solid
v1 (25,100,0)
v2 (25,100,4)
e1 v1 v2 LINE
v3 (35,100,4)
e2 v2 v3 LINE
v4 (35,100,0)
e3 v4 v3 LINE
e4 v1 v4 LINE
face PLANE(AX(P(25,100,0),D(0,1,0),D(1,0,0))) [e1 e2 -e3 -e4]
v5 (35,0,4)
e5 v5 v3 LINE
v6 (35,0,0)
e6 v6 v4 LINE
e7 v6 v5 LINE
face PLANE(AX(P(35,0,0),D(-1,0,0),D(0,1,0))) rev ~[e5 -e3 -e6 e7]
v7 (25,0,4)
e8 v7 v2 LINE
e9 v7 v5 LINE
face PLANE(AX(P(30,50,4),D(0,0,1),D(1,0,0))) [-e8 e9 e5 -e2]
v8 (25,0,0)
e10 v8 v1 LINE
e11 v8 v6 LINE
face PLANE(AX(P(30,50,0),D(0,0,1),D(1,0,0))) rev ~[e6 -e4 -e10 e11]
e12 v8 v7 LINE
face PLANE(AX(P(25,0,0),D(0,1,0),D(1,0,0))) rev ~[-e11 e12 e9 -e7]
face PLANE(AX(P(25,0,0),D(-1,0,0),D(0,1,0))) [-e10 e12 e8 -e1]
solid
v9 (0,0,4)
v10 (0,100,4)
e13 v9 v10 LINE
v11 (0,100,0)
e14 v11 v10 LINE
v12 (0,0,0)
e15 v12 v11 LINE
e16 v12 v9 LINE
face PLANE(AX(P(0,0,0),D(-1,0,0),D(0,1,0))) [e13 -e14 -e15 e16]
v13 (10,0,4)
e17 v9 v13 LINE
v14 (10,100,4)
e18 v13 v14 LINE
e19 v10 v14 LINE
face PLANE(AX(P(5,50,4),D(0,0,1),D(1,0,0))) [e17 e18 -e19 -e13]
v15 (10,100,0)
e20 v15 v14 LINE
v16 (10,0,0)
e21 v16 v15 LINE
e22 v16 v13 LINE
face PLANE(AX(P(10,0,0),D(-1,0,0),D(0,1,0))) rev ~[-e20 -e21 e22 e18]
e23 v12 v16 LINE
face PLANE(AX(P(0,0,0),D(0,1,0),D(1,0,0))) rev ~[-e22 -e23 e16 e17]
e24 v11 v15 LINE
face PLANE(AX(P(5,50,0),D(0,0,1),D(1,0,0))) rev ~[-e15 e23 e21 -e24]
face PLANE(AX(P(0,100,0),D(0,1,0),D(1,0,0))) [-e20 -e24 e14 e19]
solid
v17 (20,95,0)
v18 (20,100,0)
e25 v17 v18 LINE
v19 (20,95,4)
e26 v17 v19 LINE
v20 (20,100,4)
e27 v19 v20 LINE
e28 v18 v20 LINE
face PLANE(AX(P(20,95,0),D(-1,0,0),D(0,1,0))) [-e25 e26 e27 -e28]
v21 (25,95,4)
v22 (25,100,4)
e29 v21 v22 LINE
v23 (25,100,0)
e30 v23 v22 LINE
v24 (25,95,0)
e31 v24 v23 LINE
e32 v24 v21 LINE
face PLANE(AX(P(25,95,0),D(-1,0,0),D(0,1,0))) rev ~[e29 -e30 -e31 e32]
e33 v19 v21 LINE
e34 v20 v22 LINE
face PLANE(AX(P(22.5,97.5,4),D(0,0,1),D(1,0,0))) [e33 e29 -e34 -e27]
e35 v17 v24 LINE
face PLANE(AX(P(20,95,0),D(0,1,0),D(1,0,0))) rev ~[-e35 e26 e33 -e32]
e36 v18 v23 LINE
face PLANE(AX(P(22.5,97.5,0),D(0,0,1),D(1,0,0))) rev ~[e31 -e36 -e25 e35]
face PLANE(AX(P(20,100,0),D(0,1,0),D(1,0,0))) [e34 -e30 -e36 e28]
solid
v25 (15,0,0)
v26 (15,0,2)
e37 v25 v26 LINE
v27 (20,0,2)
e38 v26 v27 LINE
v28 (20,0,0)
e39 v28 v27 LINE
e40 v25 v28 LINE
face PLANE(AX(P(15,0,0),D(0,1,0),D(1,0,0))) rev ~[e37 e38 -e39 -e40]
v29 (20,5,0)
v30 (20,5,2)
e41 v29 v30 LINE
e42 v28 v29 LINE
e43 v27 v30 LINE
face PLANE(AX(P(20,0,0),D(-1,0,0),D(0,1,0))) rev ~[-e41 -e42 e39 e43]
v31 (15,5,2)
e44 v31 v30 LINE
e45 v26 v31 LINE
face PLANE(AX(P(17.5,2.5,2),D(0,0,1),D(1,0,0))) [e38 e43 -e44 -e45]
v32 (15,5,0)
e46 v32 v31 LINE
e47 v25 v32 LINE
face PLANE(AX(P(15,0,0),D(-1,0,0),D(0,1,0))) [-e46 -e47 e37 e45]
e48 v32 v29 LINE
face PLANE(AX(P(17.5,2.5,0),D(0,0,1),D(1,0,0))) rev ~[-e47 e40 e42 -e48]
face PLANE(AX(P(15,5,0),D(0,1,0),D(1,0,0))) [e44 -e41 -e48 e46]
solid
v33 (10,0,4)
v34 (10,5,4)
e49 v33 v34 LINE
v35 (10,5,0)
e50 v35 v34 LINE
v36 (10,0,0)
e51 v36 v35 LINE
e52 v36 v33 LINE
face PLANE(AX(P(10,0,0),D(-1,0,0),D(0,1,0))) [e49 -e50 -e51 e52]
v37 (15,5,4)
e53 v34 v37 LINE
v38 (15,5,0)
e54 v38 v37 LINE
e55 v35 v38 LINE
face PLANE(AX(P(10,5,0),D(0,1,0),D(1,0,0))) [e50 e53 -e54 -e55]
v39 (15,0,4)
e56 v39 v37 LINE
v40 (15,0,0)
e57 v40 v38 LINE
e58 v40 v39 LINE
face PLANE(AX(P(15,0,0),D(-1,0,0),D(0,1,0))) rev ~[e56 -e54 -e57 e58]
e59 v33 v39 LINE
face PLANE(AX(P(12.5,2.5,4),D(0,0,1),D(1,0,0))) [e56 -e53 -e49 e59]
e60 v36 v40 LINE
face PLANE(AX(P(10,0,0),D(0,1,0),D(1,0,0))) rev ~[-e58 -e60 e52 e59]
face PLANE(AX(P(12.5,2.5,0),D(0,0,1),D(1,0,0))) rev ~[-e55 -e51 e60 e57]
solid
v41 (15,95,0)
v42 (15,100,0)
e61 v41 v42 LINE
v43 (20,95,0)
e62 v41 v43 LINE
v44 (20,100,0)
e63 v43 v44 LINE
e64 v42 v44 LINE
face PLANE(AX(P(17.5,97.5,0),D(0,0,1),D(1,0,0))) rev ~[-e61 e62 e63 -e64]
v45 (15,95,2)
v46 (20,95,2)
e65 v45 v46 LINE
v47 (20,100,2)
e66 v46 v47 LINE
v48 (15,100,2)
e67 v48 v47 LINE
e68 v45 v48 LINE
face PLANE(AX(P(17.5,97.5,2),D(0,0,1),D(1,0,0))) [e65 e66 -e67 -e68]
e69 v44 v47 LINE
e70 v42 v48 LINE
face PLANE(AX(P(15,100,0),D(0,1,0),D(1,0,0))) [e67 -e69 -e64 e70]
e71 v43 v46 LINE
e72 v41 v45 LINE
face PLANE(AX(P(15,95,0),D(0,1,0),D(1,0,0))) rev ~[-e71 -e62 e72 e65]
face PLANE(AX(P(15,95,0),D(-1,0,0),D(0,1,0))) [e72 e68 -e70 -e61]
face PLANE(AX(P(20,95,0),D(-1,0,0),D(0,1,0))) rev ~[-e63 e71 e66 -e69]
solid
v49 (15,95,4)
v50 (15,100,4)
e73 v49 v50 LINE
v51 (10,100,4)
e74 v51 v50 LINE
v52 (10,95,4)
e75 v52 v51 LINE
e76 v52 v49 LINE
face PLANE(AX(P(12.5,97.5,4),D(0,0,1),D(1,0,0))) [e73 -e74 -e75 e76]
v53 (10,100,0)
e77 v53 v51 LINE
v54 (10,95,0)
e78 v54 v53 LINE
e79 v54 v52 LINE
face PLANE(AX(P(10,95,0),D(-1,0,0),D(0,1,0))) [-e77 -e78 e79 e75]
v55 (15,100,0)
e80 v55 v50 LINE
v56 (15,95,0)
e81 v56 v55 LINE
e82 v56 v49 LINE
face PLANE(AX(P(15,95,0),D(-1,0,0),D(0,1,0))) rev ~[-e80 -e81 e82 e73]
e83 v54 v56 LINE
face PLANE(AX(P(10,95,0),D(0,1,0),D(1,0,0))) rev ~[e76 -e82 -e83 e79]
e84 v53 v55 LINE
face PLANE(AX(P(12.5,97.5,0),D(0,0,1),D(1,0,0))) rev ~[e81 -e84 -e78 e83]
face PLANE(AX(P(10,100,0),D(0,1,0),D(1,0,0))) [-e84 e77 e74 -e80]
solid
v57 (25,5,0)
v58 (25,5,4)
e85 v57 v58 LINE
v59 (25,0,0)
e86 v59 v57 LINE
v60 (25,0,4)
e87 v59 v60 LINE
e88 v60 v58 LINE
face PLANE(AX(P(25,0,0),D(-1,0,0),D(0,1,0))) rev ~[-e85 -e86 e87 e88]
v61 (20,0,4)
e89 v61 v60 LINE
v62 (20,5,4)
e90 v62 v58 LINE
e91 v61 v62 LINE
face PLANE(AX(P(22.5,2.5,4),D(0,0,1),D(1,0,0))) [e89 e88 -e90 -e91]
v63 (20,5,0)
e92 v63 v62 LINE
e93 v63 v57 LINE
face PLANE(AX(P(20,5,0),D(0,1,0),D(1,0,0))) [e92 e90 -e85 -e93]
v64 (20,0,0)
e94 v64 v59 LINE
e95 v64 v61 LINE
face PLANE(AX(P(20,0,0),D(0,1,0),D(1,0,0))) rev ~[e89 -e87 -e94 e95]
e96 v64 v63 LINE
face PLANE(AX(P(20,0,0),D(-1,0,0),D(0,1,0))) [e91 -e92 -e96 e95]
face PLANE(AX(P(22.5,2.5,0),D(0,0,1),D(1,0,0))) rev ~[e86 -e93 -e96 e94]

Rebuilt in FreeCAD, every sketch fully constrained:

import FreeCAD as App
import Part
import Sketcher
from FreeCAD import Vector

doc = App.newDocument("Part")
body = doc.addObject("PartDesign::Body", "Body")
body.AllowCompound = True

# Sketch on XY plane
sketch1 = body.newObject("Sketcher::SketchObject", "Sketch")
sketch1.AttachmentSupport = (doc.getObject("XY_Plane"), [""])
sketch1.MapMode = "FlatFace"
sketch1.addGeometry([
    Part.LineSegment(Vector(0, 100, 0), Vector(0, 0, 0)),  # 0
    Part.LineSegment(Vector(0, 0, 0), Vector(10, 0, 0)),  # 1
    Part.LineSegment(Vector(10, 0, 0), Vector(10, 100, 0)),  # 2
    Part.LineSegment(Vector(10, 100, 0), Vector(0, 100, 0)),  # 3
    Part.LineSegment(Vector(25, 100, 0), Vector(25, 0, 0)),  # 4
    Part.LineSegment(Vector(25, 0, 0), Vector(35, 0, 0)),  # 5
    Part.LineSegment(Vector(35, 0, 0), Vector(35, 100, 0)),  # 6
    Part.LineSegment(Vector(35, 100, 0), Vector(25, 100, 0)),  # 7
], False)
sketch1.addConstraint([
    Sketcher.Constraint("Coincident", 0, 2, 1, 1),
    Sketcher.Constraint("Coincident", 1, 2, 2, 1),
    Sketcher.Constraint("Coincident", 2, 2, 3, 1),
    Sketcher.Constraint("Coincident", 3, 2, 0, 1),
    Sketcher.Constraint("Coincident", 4, 2, 5, 1),
    Sketcher.Constraint("Coincident", 5, 2, 6, 1),
    Sketcher.Constraint("Coincident", 6, 2, 7, 1),
    Sketcher.Constraint("Coincident", 7, 2, 4, 1),
    Sketcher.Constraint("Vertical", 0),
    Sketcher.Constraint("Horizontal", 1),
    Sketcher.Constraint("Vertical", 2),
    Sketcher.Constraint("Horizontal", 3),
    Sketcher.Constraint("Vertical", 4),
    Sketcher.Constraint("Horizontal", 5),
    Sketcher.Constraint("Vertical", 6),
    Sketcher.Constraint("Horizontal", 7),
    Sketcher.Constraint("Coincident", 0, 2, -1, 1),
    Sketcher.Constraint("PointOnObject", 4, 2, -1),
    Sketcher.Constraint("Horizontal", 3, 2, 6, 2),
    Sketcher.Constraint("Equal", 3, 5),
    Sketcher.Constraint("DistanceX", 1, 1, 1, 2, 10.0),
    Sketcher.Constraint("DistanceY", 0, 2, 0, 1, 100.0),
    Sketcher.Constraint("DistanceX", -1, 1, 4, 2, 25.0),
])
pad1 = body.newObject("PartDesign::Pad", "Pad")
pad1.Profile = sketch1
pad1.Length = 4
body2 = doc.addObject("PartDesign::Body", "Body001")
body2.AllowCompound = True

# Sketch on XY plane
sketch2 = body2.newObject("Sketcher::SketchObject", "Sketch001")
sketch2.AttachmentSupport = (doc.getObject("XY_Plane001"), [""])
sketch2.MapMode = "FlatFace"
sketch2.addGeometry([
    Part.LineSegment(Vector(10, 100, 0), Vector(10, 95, 0)),  # 0
    Part.LineSegment(Vector(10, 95, 0), Vector(15, 95, 0)),  # 1
    Part.LineSegment(Vector(15, 95, 0), Vector(15, 100, 0)),  # 2
    Part.LineSegment(Vector(15, 100, 0), Vector(10, 100, 0)),  # 3
    Part.LineSegment(Vector(20, 100, 0), Vector(20, 95, 0)),  # 4
    Part.LineSegment(Vector(20, 95, 0), Vector(25, 95, 0)),  # 5
    Part.LineSegment(Vector(25, 95, 0), Vector(25, 100, 0)),  # 6
    Part.LineSegment(Vector(25, 100, 0), Vector(20, 100, 0)),  # 7
    Part.LineSegment(Vector(10, 5, 0), Vector(10, 0, 0)),  # 8
    Part.LineSegment(Vector(10, 0, 0), Vector(15, 0, 0)),  # 9
    Part.LineSegment(Vector(15, 0, 0), Vector(15, 5, 0)),  # 10
    Part.LineSegment(Vector(15, 5, 0), Vector(10, 5, 0)),  # 11
    Part.LineSegment(Vector(20, 5, 0), Vector(20, 0, 0)),  # 12
    Part.LineSegment(Vector(20, 0, 0), Vector(25, 0, 0)),  # 13
    Part.LineSegment(Vector(25, 0, 0), Vector(25, 5, 0)),  # 14
    Part.LineSegment(Vector(25, 5, 0), Vector(20, 5, 0)),  # 15
], False)
sketch2.addConstraint([
    Sketcher.Constraint("Coincident", 0, 2, 1, 1),
    Sketcher.Constraint("Coincident", 1, 2, 2, 1),
    Sketcher.Constraint("Coincident", 2, 2, 3, 1),
    Sketcher.Constraint("Coincident", 3, 2, 0, 1),
    Sketcher.Constraint("Coincident", 4, 2, 5, 1),
    Sketcher.Constraint("Coincident", 5, 2, 6, 1),
    Sketcher.Constraint("Coincident", 6, 2, 7, 1),
    Sketcher.Constraint("Coincident", 7, 2, 4, 1),
    Sketcher.Constraint("Coincident", 8, 2, 9, 1),
    Sketcher.Constraint("Coincident", 9, 2, 10, 1),
    Sketcher.Constraint("Coincident", 10, 2, 11, 1),
    Sketcher.Constraint("Coincident", 11, 2, 8, 1),
    Sketcher.Constraint("Coincident", 12, 2, 13, 1),
    Sketcher.Constraint("Coincident", 13, 2, 14, 1),
    Sketcher.Constraint("Coincident", 14, 2, 15, 1),
    Sketcher.Constraint("Coincident", 15, 2, 12, 1),
    Sketcher.Constraint("Vertical", 0),
    Sketcher.Constraint("Horizontal", 1),
    Sketcher.Constraint("Vertical", 2),
    Sketcher.Constraint("Horizontal", 3),
    Sketcher.Constraint("Vertical", 4),
    Sketcher.Constraint("Horizontal", 5),
    Sketcher.Constraint("Vertical", 6),
    Sketcher.Constraint("Horizontal", 7),
    Sketcher.Constraint("Vertical", 8),
    Sketcher.Constraint("Horizontal", 9),
    Sketcher.Constraint("Vertical", 10),
    Sketcher.Constraint("Horizontal", 11),
    Sketcher.Constraint("Vertical", 12),
    Sketcher.Constraint("Horizontal", 13),
    Sketcher.Constraint("Vertical", 14),
    Sketcher.Constraint("Horizontal", 15),
    Sketcher.Constraint("PointOnObject", 8, 2, -1),
    Sketcher.Constraint("PointOnObject", 12, 2, -1),
    Sketcher.Constraint("Horizontal", 1, 2, 4, 2),
    Sketcher.Constraint("Horizontal", 3, 2, 6, 2),
    Sketcher.Constraint("Horizontal", 11, 2, 14, 2),
    Sketcher.Constraint("Vertical", 3, 2, 8, 2),
    Sketcher.Constraint("Vertical", 2, 2, 9, 2),
    Sketcher.Constraint("Vertical", 7, 2, 12, 2),
    Sketcher.Constraint("Vertical", 6, 2, 13, 2),
    Sketcher.Constraint("Equal", 3, 5),
    Sketcher.Constraint("Equal", 15, 0),
    Sketcher.Constraint("Equal", 6, 8),
    Sketcher.Constraint("DistanceX", 1, 1, 1, 2, 5.0),
    Sketcher.Constraint("DistanceX", -1, 1, 0, 2, 10.0),
    Sketcher.Constraint("DistanceY", -1, 1, 0, 2, 95.0),
    Sketcher.Constraint("DistanceX", -1, 1, 4, 2, 20.0),
])
pad2 = body2.newObject("PartDesign::Pad", "Pad001")
pad2.Profile = sketch2
pad2.Length = 4
body3 = doc.addObject("PartDesign::Body", "Body002")
body3.AllowCompound = True

# Sketch on XY plane
sketch3 = body3.newObject("Sketcher::SketchObject", "Sketch002")
sketch3.AttachmentSupport = (doc.getObject("XY_Plane002"), [""])
sketch3.MapMode = "FlatFace"
sketch3.addGeometry([
    Part.LineSegment(Vector(15, 100, 0), Vector(15, 95, 0)),  # 0
    Part.LineSegment(Vector(15, 95, 0), Vector(20, 95, 0)),  # 1
    Part.LineSegment(Vector(20, 95, 0), Vector(20, 100, 0)),  # 2
    Part.LineSegment(Vector(20, 100, 0), Vector(15, 100, 0)),  # 3
    Part.LineSegment(Vector(15, 5, 0), Vector(15, 0, 0)),  # 4
    Part.LineSegment(Vector(15, 0, 0), Vector(20, 0, 0)),  # 5
    Part.LineSegment(Vector(20, 0, 0), Vector(20, 5, 0)),  # 6
    Part.LineSegment(Vector(20, 5, 0), Vector(15, 5, 0)),  # 7
], False)
sketch3.addConstraint([
    Sketcher.Constraint("Coincident", 0, 2, 1, 1),
    Sketcher.Constraint("Coincident", 1, 2, 2, 1),
    Sketcher.Constraint("Coincident", 2, 2, 3, 1),
    Sketcher.Constraint("Coincident", 3, 2, 0, 1),
    Sketcher.Constraint("Coincident", 4, 2, 5, 1),
    Sketcher.Constraint("Coincident", 5, 2, 6, 1),
    Sketcher.Constraint("Coincident", 6, 2, 7, 1),
    Sketcher.Constraint("Coincident", 7, 2, 4, 1),
    Sketcher.Constraint("Vertical", 0),
    Sketcher.Constraint("Horizontal", 1),
    Sketcher.Constraint("Vertical", 2),
    Sketcher.Constraint("Horizontal", 3),
    Sketcher.Constraint("Vertical", 4),
    Sketcher.Constraint("Horizontal", 5),
    Sketcher.Constraint("Vertical", 6),
    Sketcher.Constraint("Horizontal", 7),
    Sketcher.Constraint("PointOnObject", 4, 2, -1),
    Sketcher.Constraint("Vertical", 3, 2, 4, 2),
    Sketcher.Constraint("Vertical", 2, 2, 5, 2),
    Sketcher.Constraint("Equal", 7, 0),
    Sketcher.Constraint("Equal", 2, 4),
    Sketcher.Constraint("DistanceX", 1, 1, 1, 2, 5.0),
    Sketcher.Constraint("DistanceX", -1, 1, 0, 2, 15.0),
    Sketcher.Constraint("DistanceY", -1, 1, 0, 2, 95.0),
])
pad3 = body3.newObject("PartDesign::Pad", "Pad002")
pad3.Profile = sketch3
pad3.Length = 2

doc.recompute()
